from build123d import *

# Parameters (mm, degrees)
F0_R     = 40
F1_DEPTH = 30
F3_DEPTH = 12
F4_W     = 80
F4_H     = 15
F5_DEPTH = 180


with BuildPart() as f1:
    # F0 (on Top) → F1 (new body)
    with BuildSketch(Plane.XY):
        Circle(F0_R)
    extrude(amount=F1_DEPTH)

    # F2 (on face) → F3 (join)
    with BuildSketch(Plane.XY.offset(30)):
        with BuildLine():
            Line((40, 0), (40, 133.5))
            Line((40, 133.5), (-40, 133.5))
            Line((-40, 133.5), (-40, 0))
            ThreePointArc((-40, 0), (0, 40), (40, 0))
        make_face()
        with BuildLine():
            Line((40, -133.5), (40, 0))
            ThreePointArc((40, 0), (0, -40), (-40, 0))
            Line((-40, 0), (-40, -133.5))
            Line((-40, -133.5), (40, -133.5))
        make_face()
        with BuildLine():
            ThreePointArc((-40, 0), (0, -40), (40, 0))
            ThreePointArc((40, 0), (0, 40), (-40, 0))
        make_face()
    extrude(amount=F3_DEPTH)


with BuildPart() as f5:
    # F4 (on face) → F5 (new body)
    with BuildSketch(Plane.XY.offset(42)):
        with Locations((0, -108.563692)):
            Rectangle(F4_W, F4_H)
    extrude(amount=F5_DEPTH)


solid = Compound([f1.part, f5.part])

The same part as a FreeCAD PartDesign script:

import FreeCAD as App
import Part
import Sketcher

V = App.Vector


def add_polygon(sketch, points):
    """Adds a closed chain of lines whose ends are joined by coincident constraints."""
    first, n = sketch.GeometryCount, len(points)
    for a, b in zip(points, points[1:] + points[:1]):
        sketch.addGeometry(Part.LineSegment(App.Vector(*a, 0), App.Vector(*b, 0)), False)
    for i in range(n):
        sketch.addConstraint(Sketcher.Constraint("Coincident", first + i, 2, first + (i + 1) % n, 1))

doc = App.newDocument("Part")
body = doc.addObject("PartDesign::Body", "Body")

sketch1 = body.newObject("Sketcher::SketchObject", "Sketch")
sketch1.AttachmentSupport = (doc.getObject("XY_Plane"), [""])
sketch1.MapMode = "FlatFace"
sketch1.addGeometry(Part.Circle(V(0, 0, 0), V(0, 0, 1), 40), False)
sketch1.addConstraint([
    Sketcher.Constraint("Coincident", 0, 3, -1, 1),
    Sketcher.Constraint("Diameter", 0, 80.0),
])
pad1 = body.newObject("PartDesign::Pad", "Pad")
pad1.Profile = sketch1
pad1.Length = 30

sketch2 = body.newObject("Sketcher::SketchObject", "Sketch001")
sketch2.AttachmentSupport = (doc.getObject("XY_Plane"), [""])
sketch2.MapMode = "FlatFace"
sketch2.AttachmentOffset = App.Placement(V(0, 0, 30), App.Rotation())
add_polygon(sketch2, [(40, 134), (-40, 134), (-40, -134), (40, -134)])
sketch2.addConstraint([
    Sketcher.Constraint("Horizontal", 0),
    Sketcher.Constraint("Vertical", 1),
    Sketcher.Constraint("Horizontal", 2),
    Sketcher.Constraint("Vertical", 3),
    Sketcher.Constraint("Symmetric", 0, 2, 2, 2, -1, 1),
    Sketcher.Constraint("DistanceX", 0, 2, 0, 1, 80.0),
    Sketcher.Constraint("DistanceY", 1, 2, 1, 1, 267.0),
])
pad2 = body.newObject("PartDesign::Pad", "Pad001")
pad2.Profile = sketch2
pad2.Length = 12
body2 = doc.addObject("PartDesign::Body", "Body001")

sketch3 = body2.newObject("Sketcher::SketchObject", "Sketch002")
sketch3.AttachmentSupport = (doc.getObject("XY_Plane001"), [""])
sketch3.MapMode = "FlatFace"
sketch3.AttachmentOffset = App.Placement(V(0, 0, 42), App.Rotation())
add_polygon(sketch3, [(-40, -101), (-40, -116), (40, -116), (40, -101)])
sketch3.addConstraint([
    Sketcher.Constraint("Vertical", 0),
    Sketcher.Constraint("Horizontal", 1),
    Sketcher.Constraint("Vertical", 2),
    Sketcher.Constraint("Horizontal", 3),
    Sketcher.Constraint("DistanceX", 1, 1, 1, 2, 80.0),
    Sketcher.Constraint("DistanceY", 0, 2, 0, 1, 15.0),
    Sketcher.Constraint("DistanceX", 0, 2, -1, 1, 40.0),
    Sketcher.Constraint("DistanceY", 0, 2, -1, 1, 116.063692),
])
pad3 = body2.newObject("PartDesign::Pad", "Pad002")
pad3.Profile = sketch3
pad3.Length = 180

doc.recompute()
